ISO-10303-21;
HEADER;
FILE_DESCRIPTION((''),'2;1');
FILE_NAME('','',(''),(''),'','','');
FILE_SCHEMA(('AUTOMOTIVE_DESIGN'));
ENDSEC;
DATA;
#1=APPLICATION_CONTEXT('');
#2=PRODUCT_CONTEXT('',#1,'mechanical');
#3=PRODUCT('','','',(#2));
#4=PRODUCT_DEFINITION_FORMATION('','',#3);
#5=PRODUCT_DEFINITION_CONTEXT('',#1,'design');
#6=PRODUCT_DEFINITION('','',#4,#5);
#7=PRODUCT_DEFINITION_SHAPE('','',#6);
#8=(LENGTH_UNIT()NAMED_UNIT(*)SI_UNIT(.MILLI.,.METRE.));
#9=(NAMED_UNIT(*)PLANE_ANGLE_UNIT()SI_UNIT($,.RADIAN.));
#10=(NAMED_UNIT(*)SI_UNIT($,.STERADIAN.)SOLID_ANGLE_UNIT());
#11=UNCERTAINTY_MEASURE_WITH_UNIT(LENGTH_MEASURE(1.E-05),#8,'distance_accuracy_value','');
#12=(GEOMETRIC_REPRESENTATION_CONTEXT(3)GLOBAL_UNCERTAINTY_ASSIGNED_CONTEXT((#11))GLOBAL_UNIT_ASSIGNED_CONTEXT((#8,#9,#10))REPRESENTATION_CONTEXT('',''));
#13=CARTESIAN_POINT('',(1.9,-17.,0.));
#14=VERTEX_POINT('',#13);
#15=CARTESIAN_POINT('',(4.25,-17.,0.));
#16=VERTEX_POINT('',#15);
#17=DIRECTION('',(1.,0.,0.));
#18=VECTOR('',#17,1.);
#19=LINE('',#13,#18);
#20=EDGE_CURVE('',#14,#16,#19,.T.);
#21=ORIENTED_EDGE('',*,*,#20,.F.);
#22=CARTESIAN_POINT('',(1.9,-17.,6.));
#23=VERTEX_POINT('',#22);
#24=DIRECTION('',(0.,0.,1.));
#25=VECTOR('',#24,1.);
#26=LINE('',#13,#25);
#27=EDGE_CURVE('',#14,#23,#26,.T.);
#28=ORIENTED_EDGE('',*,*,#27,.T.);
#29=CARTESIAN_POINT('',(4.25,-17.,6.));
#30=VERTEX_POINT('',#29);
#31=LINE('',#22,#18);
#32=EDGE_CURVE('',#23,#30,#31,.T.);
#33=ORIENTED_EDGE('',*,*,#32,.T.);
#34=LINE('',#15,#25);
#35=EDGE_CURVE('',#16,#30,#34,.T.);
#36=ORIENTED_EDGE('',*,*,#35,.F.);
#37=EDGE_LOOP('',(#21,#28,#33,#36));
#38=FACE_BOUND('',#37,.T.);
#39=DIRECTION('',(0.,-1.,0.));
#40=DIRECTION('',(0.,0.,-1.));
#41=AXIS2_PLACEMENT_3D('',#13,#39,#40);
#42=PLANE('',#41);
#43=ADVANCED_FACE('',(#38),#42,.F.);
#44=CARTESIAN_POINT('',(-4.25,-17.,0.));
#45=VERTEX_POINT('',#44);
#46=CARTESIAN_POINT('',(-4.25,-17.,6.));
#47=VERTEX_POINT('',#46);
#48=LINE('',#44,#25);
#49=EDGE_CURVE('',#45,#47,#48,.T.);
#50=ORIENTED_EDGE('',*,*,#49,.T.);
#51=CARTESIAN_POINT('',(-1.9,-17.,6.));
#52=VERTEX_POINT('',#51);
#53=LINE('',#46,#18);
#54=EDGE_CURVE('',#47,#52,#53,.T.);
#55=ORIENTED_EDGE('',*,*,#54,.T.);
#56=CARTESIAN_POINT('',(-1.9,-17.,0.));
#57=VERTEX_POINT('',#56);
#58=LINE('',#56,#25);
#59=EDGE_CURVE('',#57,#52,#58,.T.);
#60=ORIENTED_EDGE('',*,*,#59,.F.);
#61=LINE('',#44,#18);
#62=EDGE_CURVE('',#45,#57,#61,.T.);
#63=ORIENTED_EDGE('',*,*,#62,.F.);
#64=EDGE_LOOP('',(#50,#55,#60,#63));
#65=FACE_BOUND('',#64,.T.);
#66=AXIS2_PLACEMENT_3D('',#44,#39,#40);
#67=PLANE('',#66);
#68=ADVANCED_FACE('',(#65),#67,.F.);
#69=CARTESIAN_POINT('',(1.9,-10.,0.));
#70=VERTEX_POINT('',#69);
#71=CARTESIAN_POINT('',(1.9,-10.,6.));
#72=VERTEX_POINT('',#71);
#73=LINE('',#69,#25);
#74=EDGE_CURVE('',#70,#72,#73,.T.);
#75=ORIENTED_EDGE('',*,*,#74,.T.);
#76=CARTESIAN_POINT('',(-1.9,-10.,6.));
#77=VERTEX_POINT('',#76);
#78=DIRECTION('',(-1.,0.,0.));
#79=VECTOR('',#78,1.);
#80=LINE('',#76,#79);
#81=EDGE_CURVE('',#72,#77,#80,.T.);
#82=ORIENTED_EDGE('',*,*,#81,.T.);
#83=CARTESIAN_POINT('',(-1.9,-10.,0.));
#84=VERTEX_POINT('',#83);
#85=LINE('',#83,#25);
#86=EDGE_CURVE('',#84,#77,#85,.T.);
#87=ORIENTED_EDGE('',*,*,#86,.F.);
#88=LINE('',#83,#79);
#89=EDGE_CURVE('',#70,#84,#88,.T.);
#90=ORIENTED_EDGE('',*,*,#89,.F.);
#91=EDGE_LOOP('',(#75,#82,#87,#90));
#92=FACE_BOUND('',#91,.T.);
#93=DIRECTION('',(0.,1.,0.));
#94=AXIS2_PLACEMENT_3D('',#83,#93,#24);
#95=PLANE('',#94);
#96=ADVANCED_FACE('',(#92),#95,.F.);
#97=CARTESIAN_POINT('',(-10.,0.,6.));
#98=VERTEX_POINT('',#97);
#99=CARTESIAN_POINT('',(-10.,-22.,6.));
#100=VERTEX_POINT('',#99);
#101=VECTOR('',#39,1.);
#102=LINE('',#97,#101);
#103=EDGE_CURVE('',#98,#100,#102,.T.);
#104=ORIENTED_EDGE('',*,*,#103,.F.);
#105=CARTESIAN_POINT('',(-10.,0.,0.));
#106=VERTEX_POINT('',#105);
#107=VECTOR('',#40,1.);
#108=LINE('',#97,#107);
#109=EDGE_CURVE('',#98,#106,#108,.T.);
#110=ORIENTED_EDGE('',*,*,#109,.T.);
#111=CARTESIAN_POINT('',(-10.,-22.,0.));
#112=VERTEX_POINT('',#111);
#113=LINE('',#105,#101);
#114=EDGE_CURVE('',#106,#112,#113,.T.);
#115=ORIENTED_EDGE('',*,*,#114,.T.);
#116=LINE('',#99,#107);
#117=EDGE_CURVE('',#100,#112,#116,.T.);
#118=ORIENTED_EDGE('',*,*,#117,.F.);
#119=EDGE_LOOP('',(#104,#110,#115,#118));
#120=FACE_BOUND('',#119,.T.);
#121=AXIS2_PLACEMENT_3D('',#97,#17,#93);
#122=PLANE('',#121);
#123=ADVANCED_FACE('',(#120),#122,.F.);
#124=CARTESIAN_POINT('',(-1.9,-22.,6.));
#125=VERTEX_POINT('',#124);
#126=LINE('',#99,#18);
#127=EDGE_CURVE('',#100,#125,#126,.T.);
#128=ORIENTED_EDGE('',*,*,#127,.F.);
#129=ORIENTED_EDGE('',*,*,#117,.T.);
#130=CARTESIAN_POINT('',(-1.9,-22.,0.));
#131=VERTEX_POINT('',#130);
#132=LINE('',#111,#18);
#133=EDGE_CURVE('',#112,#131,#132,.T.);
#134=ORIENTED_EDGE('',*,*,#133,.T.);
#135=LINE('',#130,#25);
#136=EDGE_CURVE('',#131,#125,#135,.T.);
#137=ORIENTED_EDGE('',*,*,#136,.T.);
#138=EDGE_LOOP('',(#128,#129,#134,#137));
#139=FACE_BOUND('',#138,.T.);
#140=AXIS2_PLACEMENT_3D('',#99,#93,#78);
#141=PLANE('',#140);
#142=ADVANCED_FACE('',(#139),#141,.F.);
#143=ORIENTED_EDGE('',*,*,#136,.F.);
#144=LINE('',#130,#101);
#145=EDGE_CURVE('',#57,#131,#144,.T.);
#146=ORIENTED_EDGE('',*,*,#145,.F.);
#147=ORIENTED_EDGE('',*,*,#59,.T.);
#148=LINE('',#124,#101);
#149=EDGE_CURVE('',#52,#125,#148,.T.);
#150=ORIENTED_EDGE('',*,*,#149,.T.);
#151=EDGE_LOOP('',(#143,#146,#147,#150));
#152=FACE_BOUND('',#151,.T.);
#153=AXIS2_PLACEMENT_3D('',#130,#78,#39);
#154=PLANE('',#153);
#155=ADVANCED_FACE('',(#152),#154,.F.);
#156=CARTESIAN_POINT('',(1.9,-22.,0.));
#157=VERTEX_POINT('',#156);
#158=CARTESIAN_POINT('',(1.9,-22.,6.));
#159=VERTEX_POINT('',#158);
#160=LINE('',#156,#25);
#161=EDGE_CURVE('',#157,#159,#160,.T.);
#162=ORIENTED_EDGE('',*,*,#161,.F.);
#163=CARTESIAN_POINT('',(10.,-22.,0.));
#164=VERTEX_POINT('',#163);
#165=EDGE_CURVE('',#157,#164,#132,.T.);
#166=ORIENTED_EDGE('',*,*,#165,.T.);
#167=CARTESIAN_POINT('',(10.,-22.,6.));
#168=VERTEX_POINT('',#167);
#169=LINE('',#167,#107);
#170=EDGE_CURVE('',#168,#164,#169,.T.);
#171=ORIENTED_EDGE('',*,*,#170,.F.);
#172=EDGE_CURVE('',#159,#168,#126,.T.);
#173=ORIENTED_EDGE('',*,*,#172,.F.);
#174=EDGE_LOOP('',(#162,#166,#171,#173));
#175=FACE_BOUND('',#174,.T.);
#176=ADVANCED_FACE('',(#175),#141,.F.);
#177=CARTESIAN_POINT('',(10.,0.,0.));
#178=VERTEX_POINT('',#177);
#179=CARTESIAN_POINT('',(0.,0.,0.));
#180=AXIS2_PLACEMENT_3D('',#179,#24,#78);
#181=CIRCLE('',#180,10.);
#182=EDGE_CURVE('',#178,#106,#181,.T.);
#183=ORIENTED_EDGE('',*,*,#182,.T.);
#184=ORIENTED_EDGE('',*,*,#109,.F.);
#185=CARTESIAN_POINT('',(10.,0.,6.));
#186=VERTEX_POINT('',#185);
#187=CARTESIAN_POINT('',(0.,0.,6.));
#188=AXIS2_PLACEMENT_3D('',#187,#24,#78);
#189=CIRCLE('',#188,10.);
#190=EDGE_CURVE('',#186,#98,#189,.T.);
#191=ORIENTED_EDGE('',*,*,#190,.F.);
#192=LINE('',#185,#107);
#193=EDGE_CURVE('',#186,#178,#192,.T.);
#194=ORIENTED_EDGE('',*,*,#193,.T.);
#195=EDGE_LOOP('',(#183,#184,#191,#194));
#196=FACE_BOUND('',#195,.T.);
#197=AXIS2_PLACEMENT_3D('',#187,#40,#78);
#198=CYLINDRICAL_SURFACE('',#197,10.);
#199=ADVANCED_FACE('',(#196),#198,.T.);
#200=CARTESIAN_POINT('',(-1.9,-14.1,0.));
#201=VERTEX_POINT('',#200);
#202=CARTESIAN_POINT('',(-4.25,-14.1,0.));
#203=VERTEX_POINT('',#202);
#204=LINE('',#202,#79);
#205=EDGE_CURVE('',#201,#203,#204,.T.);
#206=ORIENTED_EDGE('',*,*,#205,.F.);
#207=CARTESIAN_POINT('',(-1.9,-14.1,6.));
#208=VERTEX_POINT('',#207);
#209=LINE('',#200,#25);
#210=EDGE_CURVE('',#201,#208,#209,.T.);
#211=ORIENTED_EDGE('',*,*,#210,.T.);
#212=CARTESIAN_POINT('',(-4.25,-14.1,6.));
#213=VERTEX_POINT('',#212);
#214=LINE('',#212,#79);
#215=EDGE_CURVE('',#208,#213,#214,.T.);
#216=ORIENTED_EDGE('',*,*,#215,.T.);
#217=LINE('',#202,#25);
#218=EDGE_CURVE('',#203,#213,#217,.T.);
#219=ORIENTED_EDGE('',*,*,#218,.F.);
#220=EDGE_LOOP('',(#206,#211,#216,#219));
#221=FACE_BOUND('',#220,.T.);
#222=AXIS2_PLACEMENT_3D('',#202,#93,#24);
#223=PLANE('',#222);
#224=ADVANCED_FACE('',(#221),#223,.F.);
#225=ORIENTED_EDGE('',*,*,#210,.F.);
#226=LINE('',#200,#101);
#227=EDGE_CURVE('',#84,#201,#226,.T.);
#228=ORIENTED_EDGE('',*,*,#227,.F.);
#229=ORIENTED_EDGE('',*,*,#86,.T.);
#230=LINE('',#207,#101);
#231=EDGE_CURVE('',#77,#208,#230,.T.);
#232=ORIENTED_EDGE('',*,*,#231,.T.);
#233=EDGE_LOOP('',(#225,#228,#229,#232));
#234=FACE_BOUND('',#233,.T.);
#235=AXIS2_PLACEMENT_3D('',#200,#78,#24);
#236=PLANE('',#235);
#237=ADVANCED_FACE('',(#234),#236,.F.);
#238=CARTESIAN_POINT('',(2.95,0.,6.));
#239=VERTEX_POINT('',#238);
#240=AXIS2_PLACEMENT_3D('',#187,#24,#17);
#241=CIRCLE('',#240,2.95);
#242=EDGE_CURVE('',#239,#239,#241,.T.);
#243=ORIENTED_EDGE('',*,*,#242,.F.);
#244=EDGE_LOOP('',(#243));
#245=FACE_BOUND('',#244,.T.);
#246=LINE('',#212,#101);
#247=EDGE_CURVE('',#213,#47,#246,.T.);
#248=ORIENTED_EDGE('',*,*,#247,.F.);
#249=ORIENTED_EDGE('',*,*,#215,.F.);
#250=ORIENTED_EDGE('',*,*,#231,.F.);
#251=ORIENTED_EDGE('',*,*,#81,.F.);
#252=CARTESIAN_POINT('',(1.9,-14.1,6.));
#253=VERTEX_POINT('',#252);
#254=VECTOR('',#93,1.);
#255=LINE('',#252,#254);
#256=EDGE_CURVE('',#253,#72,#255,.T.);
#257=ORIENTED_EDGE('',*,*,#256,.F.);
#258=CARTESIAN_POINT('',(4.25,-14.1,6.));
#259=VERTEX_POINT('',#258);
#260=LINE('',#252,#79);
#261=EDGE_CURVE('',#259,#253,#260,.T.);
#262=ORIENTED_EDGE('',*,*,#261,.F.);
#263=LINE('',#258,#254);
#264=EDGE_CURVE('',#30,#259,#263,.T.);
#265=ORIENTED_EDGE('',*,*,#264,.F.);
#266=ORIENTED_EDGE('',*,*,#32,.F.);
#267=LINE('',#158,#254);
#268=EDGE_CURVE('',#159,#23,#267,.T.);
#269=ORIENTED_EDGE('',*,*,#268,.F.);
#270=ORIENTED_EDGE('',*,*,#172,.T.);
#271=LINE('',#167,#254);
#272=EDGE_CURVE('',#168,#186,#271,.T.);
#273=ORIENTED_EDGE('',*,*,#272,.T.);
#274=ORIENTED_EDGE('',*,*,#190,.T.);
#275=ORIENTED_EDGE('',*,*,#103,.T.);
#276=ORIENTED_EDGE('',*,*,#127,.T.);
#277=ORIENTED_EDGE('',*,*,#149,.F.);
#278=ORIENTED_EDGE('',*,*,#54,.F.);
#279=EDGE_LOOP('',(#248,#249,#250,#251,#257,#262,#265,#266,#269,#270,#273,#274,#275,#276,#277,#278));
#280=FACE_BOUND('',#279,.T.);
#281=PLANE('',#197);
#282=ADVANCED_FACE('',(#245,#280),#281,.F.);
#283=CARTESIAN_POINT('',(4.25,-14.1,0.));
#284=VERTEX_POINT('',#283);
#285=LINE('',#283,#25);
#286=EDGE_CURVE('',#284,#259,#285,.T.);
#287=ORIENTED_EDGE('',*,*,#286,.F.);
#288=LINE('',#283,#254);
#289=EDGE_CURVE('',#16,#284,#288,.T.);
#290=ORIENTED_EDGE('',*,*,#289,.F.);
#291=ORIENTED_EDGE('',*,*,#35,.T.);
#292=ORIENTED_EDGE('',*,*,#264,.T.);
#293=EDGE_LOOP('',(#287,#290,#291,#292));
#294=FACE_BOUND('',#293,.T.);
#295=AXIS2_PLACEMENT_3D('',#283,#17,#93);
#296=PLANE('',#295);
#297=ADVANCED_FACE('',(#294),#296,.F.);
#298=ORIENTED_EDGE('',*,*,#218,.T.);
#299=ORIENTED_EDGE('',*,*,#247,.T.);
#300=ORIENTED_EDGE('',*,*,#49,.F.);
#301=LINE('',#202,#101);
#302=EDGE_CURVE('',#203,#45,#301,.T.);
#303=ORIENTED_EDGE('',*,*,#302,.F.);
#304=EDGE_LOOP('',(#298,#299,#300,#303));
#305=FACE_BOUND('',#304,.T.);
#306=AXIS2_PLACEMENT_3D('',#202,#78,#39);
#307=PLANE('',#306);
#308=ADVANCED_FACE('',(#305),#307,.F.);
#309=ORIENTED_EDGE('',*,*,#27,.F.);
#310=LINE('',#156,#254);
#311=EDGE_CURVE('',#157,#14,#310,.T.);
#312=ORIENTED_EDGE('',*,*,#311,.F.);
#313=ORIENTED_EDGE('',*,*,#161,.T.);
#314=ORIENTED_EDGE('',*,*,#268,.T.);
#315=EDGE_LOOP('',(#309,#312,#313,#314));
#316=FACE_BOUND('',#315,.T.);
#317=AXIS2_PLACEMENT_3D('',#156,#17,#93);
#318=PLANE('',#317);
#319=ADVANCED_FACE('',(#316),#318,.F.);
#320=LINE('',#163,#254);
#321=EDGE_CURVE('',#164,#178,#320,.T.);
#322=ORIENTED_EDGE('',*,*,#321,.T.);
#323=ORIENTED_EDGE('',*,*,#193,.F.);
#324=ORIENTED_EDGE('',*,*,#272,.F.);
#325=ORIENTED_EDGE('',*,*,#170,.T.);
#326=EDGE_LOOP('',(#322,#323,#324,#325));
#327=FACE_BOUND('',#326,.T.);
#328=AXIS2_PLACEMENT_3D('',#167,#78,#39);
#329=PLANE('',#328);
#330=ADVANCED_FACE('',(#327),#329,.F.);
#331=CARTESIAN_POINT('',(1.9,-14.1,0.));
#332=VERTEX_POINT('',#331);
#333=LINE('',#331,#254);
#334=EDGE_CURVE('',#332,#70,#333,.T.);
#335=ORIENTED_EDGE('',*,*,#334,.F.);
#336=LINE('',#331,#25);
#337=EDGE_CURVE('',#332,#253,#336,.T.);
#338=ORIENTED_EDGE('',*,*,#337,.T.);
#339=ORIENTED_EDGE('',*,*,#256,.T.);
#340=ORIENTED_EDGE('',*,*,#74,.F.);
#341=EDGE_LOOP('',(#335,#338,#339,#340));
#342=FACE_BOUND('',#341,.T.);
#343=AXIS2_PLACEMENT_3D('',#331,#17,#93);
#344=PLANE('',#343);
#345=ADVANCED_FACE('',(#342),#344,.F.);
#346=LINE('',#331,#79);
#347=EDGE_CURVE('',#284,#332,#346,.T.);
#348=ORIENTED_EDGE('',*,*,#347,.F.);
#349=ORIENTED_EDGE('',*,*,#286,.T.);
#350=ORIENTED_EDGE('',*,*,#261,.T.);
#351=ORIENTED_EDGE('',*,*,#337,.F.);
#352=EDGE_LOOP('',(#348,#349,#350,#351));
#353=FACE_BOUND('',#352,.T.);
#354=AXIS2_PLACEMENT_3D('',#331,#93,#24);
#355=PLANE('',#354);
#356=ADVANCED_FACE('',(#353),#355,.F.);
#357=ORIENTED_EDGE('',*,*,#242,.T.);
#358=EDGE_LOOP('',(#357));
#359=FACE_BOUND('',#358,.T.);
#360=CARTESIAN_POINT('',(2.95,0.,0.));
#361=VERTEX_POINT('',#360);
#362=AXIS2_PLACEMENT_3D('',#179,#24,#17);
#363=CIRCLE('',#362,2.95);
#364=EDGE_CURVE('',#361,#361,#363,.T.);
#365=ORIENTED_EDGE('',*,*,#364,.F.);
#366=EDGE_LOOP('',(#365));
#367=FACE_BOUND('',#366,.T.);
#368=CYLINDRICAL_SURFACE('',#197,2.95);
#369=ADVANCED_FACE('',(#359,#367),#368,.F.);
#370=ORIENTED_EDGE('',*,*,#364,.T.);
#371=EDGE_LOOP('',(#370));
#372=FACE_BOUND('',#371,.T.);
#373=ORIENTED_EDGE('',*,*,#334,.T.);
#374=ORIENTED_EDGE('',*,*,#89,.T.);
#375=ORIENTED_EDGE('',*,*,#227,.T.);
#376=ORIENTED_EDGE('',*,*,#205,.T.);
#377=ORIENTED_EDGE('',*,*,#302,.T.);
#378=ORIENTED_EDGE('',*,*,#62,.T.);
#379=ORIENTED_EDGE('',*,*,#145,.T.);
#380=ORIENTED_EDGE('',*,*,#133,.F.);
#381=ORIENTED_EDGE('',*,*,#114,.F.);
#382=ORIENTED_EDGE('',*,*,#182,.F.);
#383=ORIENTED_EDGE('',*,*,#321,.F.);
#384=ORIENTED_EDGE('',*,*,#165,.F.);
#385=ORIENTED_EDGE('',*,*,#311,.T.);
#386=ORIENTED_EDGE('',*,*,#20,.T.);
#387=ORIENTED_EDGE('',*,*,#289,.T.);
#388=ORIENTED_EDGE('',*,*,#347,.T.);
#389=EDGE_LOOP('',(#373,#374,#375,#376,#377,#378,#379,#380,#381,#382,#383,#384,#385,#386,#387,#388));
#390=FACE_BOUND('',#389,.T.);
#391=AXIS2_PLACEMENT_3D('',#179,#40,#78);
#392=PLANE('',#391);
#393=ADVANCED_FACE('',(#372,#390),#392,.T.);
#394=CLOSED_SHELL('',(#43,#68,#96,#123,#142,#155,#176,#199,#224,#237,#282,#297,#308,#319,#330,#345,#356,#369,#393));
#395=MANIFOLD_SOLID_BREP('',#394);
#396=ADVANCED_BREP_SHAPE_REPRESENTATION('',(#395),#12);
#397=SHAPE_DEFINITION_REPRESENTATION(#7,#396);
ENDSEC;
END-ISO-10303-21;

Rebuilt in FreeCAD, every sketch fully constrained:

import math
import FreeCAD as App
import Part
import Sketcher
from FreeCAD import Vector


def add_polygon(sketch, points):
    """Adds a closed chain of lines whose ends are joined by coincident constraints."""
    first, n = sketch.GeometryCount, len(points)
    for a, b in zip(points, points[1:] + points[:1]):
        sketch.addGeometry(Part.LineSegment(App.Vector(*a, 0), App.Vector(*b, 0)), False)
    for i in range(n):
        sketch.addConstraint(Sketcher.Constraint("Coincident", first + i, 2, first + (i + 1) % n, 1))

doc = App.newDocument("Part")
body = doc.addObject("PartDesign::Body", "Body")

sketch1 = doc.addObject("Sketcher::SketchObject", "Sketch")
body.addObject(sketch1)
sketch1.AttachmentSupport = (doc.XY_Plane, [""])
sketch1.MapMode = "FlatFace"
sketch1.addGeometry(Part.LineSegment(Vector(-10, 0, 0), Vector(-10, -22, 0)), False)
sketch1.addGeometry(Part.LineSegment(Vector(-10, -22, 0), Vector(10, -22, 0)), False)
sketch1.addGeometry(Part.LineSegment(Vector(10, -22, 0), Vector(10, 0, 0)), False)
sketch1.addGeometry(Part.ArcOfCircle(Part.Circle(Vector(0, 0, 0), Vector(0, 0, 1), 10), math.radians(0), math.radians(180)), False)
sketch1.addGeometry(Part.Circle(Vector(0, 0, 0), Vector(0, 0, 1), 3), False)
sketch1.addConstraint(Sketcher.Constraint("Coincident", 0, 2, 1, 1))
sketch1.addConstraint(Sketcher.Constraint("Coincident", 1, 2, 2, 1))
sketch1.addConstraint(Sketcher.Constraint("Tangent", 2, 2, 3, 1))
sketch1.addConstraint(Sketcher.Constraint("Tangent", 3, 2, 0, 1))
sketch1.addConstraint(Sketcher.Constraint("Vertical", 0))
sketch1.addConstraint(Sketcher.Constraint("Horizontal", 1))
sketch1.addConstraint(Sketcher.Constraint("Vertical", 2))
sketch1.addConstraint(Sketcher.Constraint("Coincident", 3, 3, -1, 1))
sketch1.addConstraint(Sketcher.Constraint("Coincident", 4, 3, -1, 1))
sketch1.addConstraint(Sketcher.Constraint("Radius", 3, 10.0))
sketch1.addConstraint(Sketcher.Constraint("Diameter", 4, 5.9))
sketch1.addConstraint(Sketcher.Constraint("DistanceY", 0, 2, 0, 1, 22.0))
pad1 = doc.addObject("PartDesign::Pad", "Pad")
body.addObject(pad1)
pad1.Profile = sketch1
pad1.Length = 6

sketch2 = doc.addObject("Sketcher::SketchObject", "Sketch001")
body.addObject(sketch2)
sketch2.AttachmentSupport = (doc.XY_Plane, [""])
sketch2.MapMode = "FlatFace"
sketch2.AttachmentOffset = App.Placement(Vector(0, 0, 6), App.Rotation())
add_polygon(sketch2, [(-1.9, -22), (1.9, -22), (1.9, -17), (4.2, -17), (4.2, -14.1), (1.9, -14.1), (1.9, -10), (-1.9, -10), (-1.9, -14.1), (-4.2, -14.1), (-4.2, -17), (-1.9, -17)])
sketch2.addConstraint(Sketcher.Constraint("Horizontal", 0))
sketch2.addConstraint(Sketcher.Constraint("Vertical", 1))
sketch2.addConstraint(Sketcher.Constraint("Horizontal", 2))
sketch2.addConstraint(Sketcher.Constraint("Vertical", 3))
sketch2.addConstraint(Sketcher.Constraint("Horizontal", 4))
sketch2.addConstraint(Sketcher.Constraint("Vertical", 5))
sketch2.addConstraint(Sketcher.Constraint("Horizontal", 6))
sketch2.addConstraint(Sketcher.Constraint("Vertical", 7))
sketch2.addConstraint(Sketcher.Constraint("Horizontal", 8))
sketch2.addConstraint(Sketcher.Constraint("Vertical", 9))
sketch2.addConstraint(Sketcher.Constraint("Horizontal", 10))
sketch2.addConstraint(Sketcher.Constraint("Vertical", 11))
sketch2.addConstraint(Sketcher.Constraint("Symmetric", 4, 2, 7, 2, -2))
sketch2.addConstraint(Sketcher.Constraint("Symmetric", 2, 2, 9, 2, -2))
sketch2.addConstraint(Sketcher.Constraint("Vertical", 1, 2, 4, 2))
sketch2.addConstraint(Sketcher.Constraint("Vertical", 7, 2, 10, 2))
sketch2.addConstraint(Sketcher.Constraint("DistanceY", 1, 1, 1, 2, 5.0))
sketch2.addConstraint(Sketcher.Constraint("DistanceX", 0, 1, 0, 2, 3.8))
sketch2.addConstraint(Sketcher.Constraint("DistanceY", 3, 1, 3, 2, 2.9))
sketch2.addConstraint(Sketcher.Constraint("DistanceY", 5, 1, 5, 2, 4.1))
sketch2.addConstraint(Sketcher.Constraint("DistanceY", 0, 2, -1, 1, 22.0))
sketch2.addConstraint(Sketcher.Constraint("DistanceX", 2, 1, 2, 2, 2.35))
pocket1 = doc.addObject("PartDesign::Pocket", "Pocket")
body.addObject(pocket1)
pocket1.Profile = sketch2
pocket1.Type = "ThroughAll"

doc.recompute()
